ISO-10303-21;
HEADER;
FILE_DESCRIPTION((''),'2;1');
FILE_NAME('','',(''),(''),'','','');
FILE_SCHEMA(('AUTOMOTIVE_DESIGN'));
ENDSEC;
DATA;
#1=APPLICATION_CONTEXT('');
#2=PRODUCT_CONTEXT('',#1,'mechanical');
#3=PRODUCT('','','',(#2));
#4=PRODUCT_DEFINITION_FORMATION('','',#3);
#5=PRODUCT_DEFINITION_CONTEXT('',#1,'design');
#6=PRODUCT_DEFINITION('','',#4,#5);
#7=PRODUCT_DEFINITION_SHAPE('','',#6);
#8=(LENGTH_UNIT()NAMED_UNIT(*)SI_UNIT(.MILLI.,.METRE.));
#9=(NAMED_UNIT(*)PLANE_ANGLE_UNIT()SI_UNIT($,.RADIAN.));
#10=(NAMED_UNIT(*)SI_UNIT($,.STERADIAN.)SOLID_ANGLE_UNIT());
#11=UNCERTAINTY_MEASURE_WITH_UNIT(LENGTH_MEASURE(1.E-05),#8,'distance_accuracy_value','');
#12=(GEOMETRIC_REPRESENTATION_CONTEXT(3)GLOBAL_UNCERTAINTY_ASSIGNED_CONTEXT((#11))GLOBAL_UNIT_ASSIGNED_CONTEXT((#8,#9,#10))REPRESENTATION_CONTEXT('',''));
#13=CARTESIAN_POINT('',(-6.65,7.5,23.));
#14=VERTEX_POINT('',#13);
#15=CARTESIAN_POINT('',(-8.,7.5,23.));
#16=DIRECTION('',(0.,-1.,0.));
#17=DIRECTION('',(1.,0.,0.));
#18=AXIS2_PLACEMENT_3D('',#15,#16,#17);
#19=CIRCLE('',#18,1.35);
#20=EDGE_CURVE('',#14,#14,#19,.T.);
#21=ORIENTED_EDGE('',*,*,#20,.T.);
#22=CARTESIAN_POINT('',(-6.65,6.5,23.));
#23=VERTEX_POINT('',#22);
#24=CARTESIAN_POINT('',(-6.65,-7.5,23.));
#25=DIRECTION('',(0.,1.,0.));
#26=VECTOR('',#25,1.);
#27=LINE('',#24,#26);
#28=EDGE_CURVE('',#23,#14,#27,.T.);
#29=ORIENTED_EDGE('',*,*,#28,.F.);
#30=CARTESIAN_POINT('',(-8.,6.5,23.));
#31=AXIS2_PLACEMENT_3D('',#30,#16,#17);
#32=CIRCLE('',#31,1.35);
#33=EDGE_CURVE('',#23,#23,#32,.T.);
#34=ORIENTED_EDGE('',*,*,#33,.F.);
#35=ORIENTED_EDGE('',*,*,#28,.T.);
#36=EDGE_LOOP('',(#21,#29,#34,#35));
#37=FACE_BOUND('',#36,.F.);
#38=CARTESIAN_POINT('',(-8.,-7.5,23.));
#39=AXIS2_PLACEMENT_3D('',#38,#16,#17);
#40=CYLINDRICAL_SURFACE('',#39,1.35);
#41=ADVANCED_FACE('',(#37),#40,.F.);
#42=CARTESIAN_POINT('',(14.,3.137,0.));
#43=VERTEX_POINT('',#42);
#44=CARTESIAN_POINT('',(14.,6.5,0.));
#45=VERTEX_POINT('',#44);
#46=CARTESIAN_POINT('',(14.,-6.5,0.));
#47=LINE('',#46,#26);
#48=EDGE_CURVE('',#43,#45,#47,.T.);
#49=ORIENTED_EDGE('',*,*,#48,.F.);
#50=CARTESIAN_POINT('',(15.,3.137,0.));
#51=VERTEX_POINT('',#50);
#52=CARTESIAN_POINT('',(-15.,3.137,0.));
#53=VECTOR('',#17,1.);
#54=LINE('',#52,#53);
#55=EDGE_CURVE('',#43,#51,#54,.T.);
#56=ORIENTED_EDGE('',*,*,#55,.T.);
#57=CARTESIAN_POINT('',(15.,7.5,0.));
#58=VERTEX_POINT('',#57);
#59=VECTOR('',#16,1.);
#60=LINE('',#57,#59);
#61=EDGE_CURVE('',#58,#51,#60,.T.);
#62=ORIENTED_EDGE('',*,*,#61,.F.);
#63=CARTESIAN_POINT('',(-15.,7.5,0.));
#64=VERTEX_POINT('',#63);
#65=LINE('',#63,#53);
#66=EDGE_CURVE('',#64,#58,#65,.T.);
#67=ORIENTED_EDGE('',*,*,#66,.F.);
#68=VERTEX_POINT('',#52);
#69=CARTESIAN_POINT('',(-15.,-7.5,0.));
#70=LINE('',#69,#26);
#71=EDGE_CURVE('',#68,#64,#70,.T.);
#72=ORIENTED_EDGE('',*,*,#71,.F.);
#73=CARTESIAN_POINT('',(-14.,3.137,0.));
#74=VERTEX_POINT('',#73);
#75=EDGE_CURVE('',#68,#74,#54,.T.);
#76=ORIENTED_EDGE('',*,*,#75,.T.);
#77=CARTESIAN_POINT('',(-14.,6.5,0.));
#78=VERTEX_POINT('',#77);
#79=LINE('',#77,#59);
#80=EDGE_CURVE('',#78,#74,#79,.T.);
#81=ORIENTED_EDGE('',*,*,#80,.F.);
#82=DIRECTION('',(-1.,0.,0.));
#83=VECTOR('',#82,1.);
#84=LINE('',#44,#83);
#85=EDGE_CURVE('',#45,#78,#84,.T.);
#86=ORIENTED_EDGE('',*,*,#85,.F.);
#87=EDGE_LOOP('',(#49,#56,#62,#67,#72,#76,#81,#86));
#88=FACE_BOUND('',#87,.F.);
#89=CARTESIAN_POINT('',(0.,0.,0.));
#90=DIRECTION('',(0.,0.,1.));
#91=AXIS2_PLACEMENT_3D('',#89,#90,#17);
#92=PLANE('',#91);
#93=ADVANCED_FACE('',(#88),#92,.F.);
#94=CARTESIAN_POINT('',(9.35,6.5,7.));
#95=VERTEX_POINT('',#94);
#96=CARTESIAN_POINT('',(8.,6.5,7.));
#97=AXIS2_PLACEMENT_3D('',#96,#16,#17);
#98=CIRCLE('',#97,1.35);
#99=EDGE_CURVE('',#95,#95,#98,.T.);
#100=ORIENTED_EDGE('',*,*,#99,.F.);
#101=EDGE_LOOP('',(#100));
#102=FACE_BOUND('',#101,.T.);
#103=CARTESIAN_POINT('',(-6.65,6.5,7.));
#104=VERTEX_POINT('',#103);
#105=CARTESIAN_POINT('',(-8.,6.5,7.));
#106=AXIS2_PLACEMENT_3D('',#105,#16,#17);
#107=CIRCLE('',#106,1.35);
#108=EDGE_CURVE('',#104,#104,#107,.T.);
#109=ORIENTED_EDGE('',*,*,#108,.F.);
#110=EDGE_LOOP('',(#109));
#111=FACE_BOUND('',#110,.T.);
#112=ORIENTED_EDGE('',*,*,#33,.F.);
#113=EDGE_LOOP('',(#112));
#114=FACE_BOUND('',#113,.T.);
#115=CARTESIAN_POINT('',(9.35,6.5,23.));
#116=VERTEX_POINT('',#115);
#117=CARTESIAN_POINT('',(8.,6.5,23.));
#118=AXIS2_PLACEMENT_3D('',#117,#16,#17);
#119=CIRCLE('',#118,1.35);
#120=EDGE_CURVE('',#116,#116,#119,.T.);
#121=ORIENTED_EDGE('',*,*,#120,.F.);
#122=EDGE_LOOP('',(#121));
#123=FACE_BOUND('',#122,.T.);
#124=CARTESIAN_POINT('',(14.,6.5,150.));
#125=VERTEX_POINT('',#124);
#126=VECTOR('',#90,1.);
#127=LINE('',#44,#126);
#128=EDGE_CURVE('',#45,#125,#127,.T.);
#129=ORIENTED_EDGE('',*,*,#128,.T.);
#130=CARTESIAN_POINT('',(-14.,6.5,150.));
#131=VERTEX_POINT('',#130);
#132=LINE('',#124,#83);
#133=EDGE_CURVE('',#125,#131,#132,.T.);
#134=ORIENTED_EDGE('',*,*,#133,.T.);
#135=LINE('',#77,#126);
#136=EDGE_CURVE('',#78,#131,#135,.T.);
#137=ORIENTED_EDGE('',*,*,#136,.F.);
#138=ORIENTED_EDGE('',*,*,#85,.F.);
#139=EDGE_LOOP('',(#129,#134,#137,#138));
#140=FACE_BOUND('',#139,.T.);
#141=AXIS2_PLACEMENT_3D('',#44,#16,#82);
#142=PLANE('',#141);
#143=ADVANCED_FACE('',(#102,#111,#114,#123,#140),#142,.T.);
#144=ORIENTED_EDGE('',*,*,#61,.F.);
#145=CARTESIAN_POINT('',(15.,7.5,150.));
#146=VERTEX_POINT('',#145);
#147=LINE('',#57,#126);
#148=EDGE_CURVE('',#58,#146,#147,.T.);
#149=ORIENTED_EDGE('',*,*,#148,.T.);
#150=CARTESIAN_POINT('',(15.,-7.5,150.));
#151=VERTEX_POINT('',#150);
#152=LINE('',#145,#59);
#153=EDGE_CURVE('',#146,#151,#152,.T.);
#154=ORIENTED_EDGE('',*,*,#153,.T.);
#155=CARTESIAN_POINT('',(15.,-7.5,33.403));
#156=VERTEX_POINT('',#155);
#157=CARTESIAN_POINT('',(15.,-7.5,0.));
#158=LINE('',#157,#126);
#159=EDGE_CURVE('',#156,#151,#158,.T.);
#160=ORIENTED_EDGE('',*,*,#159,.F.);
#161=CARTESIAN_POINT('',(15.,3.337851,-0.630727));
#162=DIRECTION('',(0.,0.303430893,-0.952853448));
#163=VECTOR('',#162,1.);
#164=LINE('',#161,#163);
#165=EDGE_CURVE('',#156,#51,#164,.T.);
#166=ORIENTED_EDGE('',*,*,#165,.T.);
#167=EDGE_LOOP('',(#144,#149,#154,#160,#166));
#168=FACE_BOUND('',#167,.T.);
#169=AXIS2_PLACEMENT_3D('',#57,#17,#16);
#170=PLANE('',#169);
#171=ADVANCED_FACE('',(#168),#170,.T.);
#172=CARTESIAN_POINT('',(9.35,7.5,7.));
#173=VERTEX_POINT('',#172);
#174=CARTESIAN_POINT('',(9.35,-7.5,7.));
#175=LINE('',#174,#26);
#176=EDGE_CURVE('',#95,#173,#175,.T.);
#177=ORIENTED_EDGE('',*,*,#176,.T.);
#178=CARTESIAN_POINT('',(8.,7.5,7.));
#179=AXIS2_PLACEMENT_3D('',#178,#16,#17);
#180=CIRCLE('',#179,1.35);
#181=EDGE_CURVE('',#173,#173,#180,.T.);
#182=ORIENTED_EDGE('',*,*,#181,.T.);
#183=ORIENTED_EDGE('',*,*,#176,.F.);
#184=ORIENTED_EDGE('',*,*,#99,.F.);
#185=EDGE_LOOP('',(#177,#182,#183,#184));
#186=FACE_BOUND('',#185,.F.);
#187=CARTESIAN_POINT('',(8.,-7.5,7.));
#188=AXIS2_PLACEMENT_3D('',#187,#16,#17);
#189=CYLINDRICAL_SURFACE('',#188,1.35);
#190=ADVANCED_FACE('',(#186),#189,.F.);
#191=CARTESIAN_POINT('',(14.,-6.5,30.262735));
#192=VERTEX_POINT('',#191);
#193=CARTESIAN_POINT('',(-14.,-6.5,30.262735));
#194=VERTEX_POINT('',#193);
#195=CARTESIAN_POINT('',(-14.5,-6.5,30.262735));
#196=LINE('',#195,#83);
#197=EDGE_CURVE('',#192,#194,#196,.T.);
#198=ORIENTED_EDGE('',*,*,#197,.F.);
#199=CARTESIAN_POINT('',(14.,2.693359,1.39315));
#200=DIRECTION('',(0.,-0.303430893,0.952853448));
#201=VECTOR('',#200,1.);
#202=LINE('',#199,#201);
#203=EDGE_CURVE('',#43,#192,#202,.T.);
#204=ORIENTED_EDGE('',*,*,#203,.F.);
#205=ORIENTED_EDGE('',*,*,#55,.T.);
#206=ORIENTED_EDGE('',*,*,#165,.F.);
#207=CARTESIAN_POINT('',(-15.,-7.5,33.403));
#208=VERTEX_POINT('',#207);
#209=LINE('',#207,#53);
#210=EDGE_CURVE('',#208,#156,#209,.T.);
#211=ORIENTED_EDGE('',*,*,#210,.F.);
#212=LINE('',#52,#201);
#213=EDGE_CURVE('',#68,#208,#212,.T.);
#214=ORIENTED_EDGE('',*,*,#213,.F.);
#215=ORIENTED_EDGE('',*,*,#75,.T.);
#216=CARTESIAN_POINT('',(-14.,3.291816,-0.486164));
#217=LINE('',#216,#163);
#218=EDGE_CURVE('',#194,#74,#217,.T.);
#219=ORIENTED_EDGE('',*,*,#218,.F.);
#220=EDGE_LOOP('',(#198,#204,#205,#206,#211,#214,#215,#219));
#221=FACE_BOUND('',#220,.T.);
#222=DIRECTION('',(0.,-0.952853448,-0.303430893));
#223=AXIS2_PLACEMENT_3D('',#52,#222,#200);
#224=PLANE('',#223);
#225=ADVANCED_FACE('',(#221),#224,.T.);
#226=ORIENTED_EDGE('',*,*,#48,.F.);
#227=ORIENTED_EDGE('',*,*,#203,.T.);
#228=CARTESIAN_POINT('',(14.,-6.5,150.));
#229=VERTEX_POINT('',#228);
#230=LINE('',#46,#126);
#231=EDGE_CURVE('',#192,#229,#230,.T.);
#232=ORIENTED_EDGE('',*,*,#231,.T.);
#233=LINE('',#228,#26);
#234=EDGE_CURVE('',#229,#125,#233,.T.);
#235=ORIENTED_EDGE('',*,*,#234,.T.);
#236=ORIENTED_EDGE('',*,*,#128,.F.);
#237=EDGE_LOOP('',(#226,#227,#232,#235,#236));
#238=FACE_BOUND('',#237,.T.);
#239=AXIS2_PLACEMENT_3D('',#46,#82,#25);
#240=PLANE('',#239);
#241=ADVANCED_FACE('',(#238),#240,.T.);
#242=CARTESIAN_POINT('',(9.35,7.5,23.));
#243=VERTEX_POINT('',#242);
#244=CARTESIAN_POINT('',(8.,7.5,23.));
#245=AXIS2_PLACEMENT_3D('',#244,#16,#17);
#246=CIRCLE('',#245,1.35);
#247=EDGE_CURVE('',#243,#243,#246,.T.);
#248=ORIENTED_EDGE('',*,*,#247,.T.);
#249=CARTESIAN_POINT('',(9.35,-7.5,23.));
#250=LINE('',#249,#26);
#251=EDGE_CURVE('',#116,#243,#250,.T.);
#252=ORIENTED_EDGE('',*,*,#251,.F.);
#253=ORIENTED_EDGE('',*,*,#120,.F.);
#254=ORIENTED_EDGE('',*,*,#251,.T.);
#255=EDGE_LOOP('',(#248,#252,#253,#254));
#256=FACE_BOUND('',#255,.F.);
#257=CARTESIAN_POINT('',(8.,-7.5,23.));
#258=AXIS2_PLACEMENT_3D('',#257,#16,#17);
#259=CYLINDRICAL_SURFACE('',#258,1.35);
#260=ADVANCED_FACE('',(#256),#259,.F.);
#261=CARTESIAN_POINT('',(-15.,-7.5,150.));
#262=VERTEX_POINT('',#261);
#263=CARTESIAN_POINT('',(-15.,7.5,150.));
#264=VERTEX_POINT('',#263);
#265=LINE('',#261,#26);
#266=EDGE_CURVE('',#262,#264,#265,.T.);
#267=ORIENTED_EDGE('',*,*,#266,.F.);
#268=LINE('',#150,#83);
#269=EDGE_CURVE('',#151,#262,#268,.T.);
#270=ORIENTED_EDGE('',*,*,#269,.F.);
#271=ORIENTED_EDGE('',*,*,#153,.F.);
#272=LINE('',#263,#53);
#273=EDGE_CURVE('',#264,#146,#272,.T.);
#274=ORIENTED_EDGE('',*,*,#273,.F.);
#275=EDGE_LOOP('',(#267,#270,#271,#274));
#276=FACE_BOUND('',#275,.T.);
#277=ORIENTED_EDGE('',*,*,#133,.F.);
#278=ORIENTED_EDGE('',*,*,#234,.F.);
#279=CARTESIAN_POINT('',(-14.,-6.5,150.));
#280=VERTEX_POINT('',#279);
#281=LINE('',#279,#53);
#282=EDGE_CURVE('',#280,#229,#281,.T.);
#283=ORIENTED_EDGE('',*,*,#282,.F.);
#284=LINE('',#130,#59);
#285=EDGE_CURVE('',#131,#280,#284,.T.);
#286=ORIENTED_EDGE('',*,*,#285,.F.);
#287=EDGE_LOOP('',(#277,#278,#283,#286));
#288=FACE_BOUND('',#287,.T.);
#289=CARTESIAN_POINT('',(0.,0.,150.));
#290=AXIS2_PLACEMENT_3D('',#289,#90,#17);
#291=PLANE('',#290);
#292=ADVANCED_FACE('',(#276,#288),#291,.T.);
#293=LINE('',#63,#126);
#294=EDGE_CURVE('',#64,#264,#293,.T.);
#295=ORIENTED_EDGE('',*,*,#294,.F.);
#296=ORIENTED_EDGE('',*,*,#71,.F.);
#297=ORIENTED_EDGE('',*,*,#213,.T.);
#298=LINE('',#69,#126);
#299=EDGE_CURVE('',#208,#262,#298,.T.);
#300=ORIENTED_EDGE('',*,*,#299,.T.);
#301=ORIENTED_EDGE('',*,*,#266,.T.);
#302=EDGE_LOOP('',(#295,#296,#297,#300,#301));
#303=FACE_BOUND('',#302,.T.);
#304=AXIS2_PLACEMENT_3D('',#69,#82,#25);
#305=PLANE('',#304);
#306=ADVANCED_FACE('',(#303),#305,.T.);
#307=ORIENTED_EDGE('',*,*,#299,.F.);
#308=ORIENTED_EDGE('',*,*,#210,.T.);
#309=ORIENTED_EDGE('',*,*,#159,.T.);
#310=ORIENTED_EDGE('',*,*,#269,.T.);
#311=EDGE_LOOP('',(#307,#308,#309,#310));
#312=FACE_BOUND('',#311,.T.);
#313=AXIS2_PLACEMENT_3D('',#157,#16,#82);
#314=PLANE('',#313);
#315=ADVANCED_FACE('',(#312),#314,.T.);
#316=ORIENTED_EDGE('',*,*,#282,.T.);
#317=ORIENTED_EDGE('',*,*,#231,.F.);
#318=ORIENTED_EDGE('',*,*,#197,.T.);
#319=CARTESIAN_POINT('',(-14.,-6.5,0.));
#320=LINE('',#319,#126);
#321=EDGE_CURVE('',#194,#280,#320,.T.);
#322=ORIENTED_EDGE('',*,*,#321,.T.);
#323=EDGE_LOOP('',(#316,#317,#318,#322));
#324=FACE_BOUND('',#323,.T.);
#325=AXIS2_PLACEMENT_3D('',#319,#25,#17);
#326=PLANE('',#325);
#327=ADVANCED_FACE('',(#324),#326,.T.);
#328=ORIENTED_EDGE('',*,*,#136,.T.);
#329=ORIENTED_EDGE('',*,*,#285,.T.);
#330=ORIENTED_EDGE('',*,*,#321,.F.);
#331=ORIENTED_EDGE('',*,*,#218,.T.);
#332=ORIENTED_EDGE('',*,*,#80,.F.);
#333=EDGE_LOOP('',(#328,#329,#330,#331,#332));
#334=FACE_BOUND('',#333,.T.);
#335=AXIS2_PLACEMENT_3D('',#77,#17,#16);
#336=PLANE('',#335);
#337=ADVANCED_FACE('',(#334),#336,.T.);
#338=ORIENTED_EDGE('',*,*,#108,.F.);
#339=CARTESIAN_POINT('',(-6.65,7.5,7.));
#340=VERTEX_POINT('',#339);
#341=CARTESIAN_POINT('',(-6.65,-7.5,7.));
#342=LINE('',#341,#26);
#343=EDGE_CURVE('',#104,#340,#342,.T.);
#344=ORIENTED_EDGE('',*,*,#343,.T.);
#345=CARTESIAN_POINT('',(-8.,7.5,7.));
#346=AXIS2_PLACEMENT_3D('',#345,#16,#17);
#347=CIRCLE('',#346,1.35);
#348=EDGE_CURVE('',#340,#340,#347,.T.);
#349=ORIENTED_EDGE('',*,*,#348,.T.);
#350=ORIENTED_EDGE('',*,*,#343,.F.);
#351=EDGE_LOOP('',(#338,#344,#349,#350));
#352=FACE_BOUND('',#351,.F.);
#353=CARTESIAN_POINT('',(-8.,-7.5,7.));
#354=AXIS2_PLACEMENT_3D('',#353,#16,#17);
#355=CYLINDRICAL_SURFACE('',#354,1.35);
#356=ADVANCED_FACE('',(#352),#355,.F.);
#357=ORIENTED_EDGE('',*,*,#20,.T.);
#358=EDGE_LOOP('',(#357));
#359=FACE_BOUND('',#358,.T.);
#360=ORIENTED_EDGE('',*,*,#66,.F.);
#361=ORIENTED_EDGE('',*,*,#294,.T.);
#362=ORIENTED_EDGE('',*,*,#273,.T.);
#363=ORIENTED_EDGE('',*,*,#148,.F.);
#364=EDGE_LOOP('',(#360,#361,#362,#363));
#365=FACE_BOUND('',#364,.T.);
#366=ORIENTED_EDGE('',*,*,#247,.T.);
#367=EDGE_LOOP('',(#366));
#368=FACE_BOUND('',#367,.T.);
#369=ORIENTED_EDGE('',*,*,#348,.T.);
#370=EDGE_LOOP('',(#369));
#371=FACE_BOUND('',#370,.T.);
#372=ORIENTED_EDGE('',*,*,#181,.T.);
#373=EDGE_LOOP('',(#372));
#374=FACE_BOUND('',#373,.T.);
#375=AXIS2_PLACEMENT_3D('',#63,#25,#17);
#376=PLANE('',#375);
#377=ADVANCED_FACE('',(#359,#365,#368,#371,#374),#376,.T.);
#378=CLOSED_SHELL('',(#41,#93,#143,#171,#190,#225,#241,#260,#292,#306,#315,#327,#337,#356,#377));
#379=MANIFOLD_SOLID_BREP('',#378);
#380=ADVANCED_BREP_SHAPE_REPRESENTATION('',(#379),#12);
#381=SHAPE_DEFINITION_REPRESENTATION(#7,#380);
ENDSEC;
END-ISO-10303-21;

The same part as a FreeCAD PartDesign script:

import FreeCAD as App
import Part
import Sketcher


def add_polygon(sketch, points):
    """Adds a closed chain of lines whose ends are joined by coincident constraints."""
    first, n = sketch.GeometryCount, len(points)
    for a, b in zip(points, points[1:] + points[:1]):
        sketch.addGeometry(Part.LineSegment(App.Vector(*a, 0), App.Vector(*b, 0)), False)
    for i in range(n):
        sketch.addConstraint(Sketcher.Constraint("Coincident", first + i, 2, first + (i + 1) % n, 1))

doc = App.newDocument("Part")
body = doc.addObject("PartDesign::Body", "Body")

sketch1 = body.newObject("Sketcher::SketchObject", "Sketch")
sketch1.AttachmentSupport = (doc.getObject("XY_Plane"), [""])
sketch1.MapMode = "FlatFace"
add_polygon(sketch1, [(-15, -8), (15, -8), (15, 8), (-15, 8)])
add_polygon(sketch1, [(-14, 6), (14, 6), (14, -6), (-14, -6)])
sketch1.addConstraint([
    Sketcher.Constraint("Horizontal", 0),
    Sketcher.Constraint("Vertical", 1),
    Sketcher.Constraint("Horizontal", 2),
    Sketcher.Constraint("Vertical", 3),
    Sketcher.Constraint("Horizontal", 4),
    Sketcher.Constraint("Vertical", 5),
    Sketcher.Constraint("Horizontal", 6),
    Sketcher.Constraint("Vertical", 7),
    Sketcher.Constraint("Symmetric", 0, 2, 2, 2, -1, 1),
    Sketcher.Constraint("Symmetric", 4, 2, 6, 2, -1, 1),
    Sketcher.Constraint("DistanceX", 0, 1, 0, 2, 30.0),
    Sketcher.Constraint("DistanceY", 1, 1, 1, 2, 15.0),
    Sketcher.Constraint("DistanceX", 4, 2, 1, 2, 1.0),
    Sketcher.Constraint("DistanceY", 4, 2, 1, 2, 1.0),
])
pad1 = body.newObject("PartDesign::Pad", "Pad")
pad1.Profile = sketch1
pad1.Length = 150

sketch2 = body.newObject("Sketcher::SketchObject", "Sketch001")
sketch2.AttachmentSupport = (doc.getObject("XZ_Plane"), [""])
sketch2.MapMode = "FlatFace"
sketch2.AttachmentOffset = App.Placement(App.Vector(0, 0, 7.5), App.Rotation())
sketch2.addGeometry([
    Part.Circle(App.Vector(-8, 7, 0), App.Vector(0, 0, 1), 1.4),
    Part.Circle(App.Vector(8, 7, 0), App.Vector(0, 0, 1), 1.4),
    Part.Circle(App.Vector(8, 23, 0), App.Vector(0, 0, 1), 1.4),
    Part.Circle(App.Vector(-8, 23, 0), App.Vector(0, 0, 1), 1.4),
], False)
sketch2.addConstraint([
    Sketcher.Constraint("Equal", 0, 1),
    Sketcher.Constraint("Equal", 1, 2),
    Sketcher.Constraint("Equal", 2, 3),
    Sketcher.Constraint("Symmetric", 0, 3, 1, 3, -2),
    Sketcher.Constraint("Symmetric", 2, 3, 3, 3, -2),
    Sketcher.Constraint("Vertical", 1, 3, 2, 3),
    Sketcher.Constraint("Diameter", 0, 2.7),
    Sketcher.Constraint("DistanceX", 0, 3, -1, 1, 8.0),
    Sketcher.Constraint("DistanceY", -1, 1, 0, 3, 7.0),
    Sketcher.Constraint("DistanceY", -1, 1, 2, 3, 23.0),
])
pocket1 = body.newObject("PartDesign::Pocket", "Pocket")
pocket1.Profile = sketch2
pocket1.Length = 23.75

sketch3 = body.newObject("Sketcher::SketchObject", "Sketch002")
sketch3.AttachmentSupport = (doc.getObject("YZ_Plane"), [""])
sketch3.MapMode = "FlatFace"
sketch3.AttachmentOffset = App.Placement(App.Vector(0, 0, -15), App.Rotation())
add_polygon(sketch3, [(3, 0), (-8, 0), (-8, 33)])
sketch3.addConstraint([
    Sketcher.Constraint("Horizontal", 0),
    Sketcher.Constraint("Vertical", 1),
    Sketcher.Constraint("PointOnObject", 0, 2, -1),
    Sketcher.Constraint("DistanceX", 0, 2, -1, 1, 7.5),
    Sketcher.Constraint("DistanceX", 0, 2, 0, 1, 10.637),
    Sketcher.Constraint("DistanceY", 1, 1, 1, 2, 33.403),
])
pocket2 = body.newObject("PartDesign::Pocket", "Pocket001")
pocket2.Profile = sketch3
pocket2.Length = 35
pocket2.Reversed = True

doc.recompute()
